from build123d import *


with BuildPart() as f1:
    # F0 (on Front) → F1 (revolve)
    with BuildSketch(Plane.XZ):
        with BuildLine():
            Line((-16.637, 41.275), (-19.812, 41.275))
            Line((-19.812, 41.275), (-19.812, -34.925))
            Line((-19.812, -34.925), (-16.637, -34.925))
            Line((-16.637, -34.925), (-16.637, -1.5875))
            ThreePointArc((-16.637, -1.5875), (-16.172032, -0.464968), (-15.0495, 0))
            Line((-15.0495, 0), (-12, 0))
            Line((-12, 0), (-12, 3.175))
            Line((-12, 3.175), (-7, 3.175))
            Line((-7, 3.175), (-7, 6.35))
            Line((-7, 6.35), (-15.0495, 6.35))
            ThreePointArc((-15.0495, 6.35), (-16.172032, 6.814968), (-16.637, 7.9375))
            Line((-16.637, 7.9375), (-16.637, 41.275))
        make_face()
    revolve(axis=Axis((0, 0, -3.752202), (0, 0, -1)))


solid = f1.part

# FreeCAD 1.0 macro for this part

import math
import FreeCAD as App
import Part
import Sketcher

V = App.Vector
Q = App.Units.Quantity

doc = App.newDocument("Part")
body = doc.addObject("PartDesign::Body", "Body")

sketch1 = body.newObject("Sketcher::SketchObject", "Sketch")
sketch1.AttachmentSupport = (doc.getObject("XZ_Plane"), [""])
sketch1.MapMode = "FlatFace"
sketch1.addGeometry([
    Part.LineSegment(V(-16.6, 41.3, 0), V(-19.8, 41.3, 0)),
    Part.LineSegment(V(-19.8, 41.3, 0), V(-19.8, -34.9, 0)),
    Part.LineSegment(V(-19.8, -34.9, 0), V(-16.6, -34.9, 0)),
    Part.LineSegment(V(-16.6, -34.9, 0), V(-16.6, -1.6, 0)),
    Part.ArcOfCircle(Part.Circle(V(-15, -1.6, 0), V(0, 0, 1), 1.6), math.radians(90), math.radians(180)),
    Part.LineSegment(V(-15, 0, 0), V(-12, 0, 0)),
    Part.LineSegment(V(-12, 0, 0), V(-12, 3.2, 0)),
    Part.LineSegment(V(-12, 3.2, 0), V(-7, 3.2, 0)),
    Part.LineSegment(V(-7, 3.2, 0), V(-7, 6.3, 0)),
    Part.LineSegment(V(-7, 6.3, 0), V(-15, 6.3, 0)),
    Part.ArcOfCircle(Part.Circle(V(-15, 7.9, 0), V(0, 0, 1), 1.6), math.radians(-180), math.radians(-90)),
    Part.LineSegment(V(-16.6, 7.9, 0), V(-16.6, 41.3, 0)),
], False)
sketch1.addConstraint([
    Sketcher.Constraint("Coincident", 0, 2, 1, 1),
    Sketcher.Constraint("Coincident", 1, 2, 2, 1),
    Sketcher.Constraint("Coincident", 2, 2, 3, 1),
    Sketcher.Constraint("Tangent", 3, 2, 4, 2),
    Sketcher.Constraint("Tangent", 4, 1, 5, 1),
    Sketcher.Constraint("Coincident", 5, 2, 6, 1),
    Sketcher.Constraint("Coincident", 6, 2, 7, 1),
    Sketcher.Constraint("Coincident", 7, 2, 8, 1),
    Sketcher.Constraint("Coincident", 8, 2, 9, 1),
    Sketcher.Constraint("Tangent", 9, 2, 10, 2),
    Sketcher.Constraint("Tangent", 10, 1, 11, 1),
    Sketcher.Constraint("Coincident", 11, 2, 0, 1),
    Sketcher.Constraint("Horizontal", 0),
    Sketcher.Constraint("Vertical", 1),
    Sketcher.Constraint("Horizontal", 2),
    Sketcher.Constraint("Vertical", 3),
    Sketcher.Constraint("Horizontal", 5),
    Sketcher.Constraint("Vertical", 6),
    Sketcher.Constraint("Horizontal", 7),
    Sketcher.Constraint("Vertical", 8),
    Sketcher.Constraint("Horizontal", 9),
    Sketcher.Constraint("Vertical", 11),
    Sketcher.Constraint("Equal", 4, 10),
    Sketcher.Constraint("PointOnObject", 4, 1, -1),
    Sketcher.Constraint("Vertical", 4, 3, 10, 3),
    Sketcher.Constraint("Equal", 2, 6),
    Sketcher.Constraint("Equal", 6, 8),
    Sketcher.Constraint("Equal", 3, 11),
    Sketcher.Constraint("DistanceY", 1, 2, 1, 1, Q("3 in")),
    Sketcher.Constraint("Radius", 4, Q("0.0625 in")),
    Sketcher.Constraint("DistanceX", 0, 2, 0, 1, Q("0.125 in")),
    Sketcher.Constraint("DistanceX", 0, 2, -1, 1, Q("0.78 in")),
    Sketcher.Constraint("DistanceX", 5, 1, 5, 2, 3.0495),
    Sketcher.Constraint("DistanceX", 7, 1, 7, 2, 5.0),
])
revolution = body.newObject("PartDesign::Revolution", "Revolution")
revolution.Profile = sketch1
revolution.ReferenceAxis = (sketch1, ["V_Axis"])
revolution.Angle = 360

doc.recompute()
